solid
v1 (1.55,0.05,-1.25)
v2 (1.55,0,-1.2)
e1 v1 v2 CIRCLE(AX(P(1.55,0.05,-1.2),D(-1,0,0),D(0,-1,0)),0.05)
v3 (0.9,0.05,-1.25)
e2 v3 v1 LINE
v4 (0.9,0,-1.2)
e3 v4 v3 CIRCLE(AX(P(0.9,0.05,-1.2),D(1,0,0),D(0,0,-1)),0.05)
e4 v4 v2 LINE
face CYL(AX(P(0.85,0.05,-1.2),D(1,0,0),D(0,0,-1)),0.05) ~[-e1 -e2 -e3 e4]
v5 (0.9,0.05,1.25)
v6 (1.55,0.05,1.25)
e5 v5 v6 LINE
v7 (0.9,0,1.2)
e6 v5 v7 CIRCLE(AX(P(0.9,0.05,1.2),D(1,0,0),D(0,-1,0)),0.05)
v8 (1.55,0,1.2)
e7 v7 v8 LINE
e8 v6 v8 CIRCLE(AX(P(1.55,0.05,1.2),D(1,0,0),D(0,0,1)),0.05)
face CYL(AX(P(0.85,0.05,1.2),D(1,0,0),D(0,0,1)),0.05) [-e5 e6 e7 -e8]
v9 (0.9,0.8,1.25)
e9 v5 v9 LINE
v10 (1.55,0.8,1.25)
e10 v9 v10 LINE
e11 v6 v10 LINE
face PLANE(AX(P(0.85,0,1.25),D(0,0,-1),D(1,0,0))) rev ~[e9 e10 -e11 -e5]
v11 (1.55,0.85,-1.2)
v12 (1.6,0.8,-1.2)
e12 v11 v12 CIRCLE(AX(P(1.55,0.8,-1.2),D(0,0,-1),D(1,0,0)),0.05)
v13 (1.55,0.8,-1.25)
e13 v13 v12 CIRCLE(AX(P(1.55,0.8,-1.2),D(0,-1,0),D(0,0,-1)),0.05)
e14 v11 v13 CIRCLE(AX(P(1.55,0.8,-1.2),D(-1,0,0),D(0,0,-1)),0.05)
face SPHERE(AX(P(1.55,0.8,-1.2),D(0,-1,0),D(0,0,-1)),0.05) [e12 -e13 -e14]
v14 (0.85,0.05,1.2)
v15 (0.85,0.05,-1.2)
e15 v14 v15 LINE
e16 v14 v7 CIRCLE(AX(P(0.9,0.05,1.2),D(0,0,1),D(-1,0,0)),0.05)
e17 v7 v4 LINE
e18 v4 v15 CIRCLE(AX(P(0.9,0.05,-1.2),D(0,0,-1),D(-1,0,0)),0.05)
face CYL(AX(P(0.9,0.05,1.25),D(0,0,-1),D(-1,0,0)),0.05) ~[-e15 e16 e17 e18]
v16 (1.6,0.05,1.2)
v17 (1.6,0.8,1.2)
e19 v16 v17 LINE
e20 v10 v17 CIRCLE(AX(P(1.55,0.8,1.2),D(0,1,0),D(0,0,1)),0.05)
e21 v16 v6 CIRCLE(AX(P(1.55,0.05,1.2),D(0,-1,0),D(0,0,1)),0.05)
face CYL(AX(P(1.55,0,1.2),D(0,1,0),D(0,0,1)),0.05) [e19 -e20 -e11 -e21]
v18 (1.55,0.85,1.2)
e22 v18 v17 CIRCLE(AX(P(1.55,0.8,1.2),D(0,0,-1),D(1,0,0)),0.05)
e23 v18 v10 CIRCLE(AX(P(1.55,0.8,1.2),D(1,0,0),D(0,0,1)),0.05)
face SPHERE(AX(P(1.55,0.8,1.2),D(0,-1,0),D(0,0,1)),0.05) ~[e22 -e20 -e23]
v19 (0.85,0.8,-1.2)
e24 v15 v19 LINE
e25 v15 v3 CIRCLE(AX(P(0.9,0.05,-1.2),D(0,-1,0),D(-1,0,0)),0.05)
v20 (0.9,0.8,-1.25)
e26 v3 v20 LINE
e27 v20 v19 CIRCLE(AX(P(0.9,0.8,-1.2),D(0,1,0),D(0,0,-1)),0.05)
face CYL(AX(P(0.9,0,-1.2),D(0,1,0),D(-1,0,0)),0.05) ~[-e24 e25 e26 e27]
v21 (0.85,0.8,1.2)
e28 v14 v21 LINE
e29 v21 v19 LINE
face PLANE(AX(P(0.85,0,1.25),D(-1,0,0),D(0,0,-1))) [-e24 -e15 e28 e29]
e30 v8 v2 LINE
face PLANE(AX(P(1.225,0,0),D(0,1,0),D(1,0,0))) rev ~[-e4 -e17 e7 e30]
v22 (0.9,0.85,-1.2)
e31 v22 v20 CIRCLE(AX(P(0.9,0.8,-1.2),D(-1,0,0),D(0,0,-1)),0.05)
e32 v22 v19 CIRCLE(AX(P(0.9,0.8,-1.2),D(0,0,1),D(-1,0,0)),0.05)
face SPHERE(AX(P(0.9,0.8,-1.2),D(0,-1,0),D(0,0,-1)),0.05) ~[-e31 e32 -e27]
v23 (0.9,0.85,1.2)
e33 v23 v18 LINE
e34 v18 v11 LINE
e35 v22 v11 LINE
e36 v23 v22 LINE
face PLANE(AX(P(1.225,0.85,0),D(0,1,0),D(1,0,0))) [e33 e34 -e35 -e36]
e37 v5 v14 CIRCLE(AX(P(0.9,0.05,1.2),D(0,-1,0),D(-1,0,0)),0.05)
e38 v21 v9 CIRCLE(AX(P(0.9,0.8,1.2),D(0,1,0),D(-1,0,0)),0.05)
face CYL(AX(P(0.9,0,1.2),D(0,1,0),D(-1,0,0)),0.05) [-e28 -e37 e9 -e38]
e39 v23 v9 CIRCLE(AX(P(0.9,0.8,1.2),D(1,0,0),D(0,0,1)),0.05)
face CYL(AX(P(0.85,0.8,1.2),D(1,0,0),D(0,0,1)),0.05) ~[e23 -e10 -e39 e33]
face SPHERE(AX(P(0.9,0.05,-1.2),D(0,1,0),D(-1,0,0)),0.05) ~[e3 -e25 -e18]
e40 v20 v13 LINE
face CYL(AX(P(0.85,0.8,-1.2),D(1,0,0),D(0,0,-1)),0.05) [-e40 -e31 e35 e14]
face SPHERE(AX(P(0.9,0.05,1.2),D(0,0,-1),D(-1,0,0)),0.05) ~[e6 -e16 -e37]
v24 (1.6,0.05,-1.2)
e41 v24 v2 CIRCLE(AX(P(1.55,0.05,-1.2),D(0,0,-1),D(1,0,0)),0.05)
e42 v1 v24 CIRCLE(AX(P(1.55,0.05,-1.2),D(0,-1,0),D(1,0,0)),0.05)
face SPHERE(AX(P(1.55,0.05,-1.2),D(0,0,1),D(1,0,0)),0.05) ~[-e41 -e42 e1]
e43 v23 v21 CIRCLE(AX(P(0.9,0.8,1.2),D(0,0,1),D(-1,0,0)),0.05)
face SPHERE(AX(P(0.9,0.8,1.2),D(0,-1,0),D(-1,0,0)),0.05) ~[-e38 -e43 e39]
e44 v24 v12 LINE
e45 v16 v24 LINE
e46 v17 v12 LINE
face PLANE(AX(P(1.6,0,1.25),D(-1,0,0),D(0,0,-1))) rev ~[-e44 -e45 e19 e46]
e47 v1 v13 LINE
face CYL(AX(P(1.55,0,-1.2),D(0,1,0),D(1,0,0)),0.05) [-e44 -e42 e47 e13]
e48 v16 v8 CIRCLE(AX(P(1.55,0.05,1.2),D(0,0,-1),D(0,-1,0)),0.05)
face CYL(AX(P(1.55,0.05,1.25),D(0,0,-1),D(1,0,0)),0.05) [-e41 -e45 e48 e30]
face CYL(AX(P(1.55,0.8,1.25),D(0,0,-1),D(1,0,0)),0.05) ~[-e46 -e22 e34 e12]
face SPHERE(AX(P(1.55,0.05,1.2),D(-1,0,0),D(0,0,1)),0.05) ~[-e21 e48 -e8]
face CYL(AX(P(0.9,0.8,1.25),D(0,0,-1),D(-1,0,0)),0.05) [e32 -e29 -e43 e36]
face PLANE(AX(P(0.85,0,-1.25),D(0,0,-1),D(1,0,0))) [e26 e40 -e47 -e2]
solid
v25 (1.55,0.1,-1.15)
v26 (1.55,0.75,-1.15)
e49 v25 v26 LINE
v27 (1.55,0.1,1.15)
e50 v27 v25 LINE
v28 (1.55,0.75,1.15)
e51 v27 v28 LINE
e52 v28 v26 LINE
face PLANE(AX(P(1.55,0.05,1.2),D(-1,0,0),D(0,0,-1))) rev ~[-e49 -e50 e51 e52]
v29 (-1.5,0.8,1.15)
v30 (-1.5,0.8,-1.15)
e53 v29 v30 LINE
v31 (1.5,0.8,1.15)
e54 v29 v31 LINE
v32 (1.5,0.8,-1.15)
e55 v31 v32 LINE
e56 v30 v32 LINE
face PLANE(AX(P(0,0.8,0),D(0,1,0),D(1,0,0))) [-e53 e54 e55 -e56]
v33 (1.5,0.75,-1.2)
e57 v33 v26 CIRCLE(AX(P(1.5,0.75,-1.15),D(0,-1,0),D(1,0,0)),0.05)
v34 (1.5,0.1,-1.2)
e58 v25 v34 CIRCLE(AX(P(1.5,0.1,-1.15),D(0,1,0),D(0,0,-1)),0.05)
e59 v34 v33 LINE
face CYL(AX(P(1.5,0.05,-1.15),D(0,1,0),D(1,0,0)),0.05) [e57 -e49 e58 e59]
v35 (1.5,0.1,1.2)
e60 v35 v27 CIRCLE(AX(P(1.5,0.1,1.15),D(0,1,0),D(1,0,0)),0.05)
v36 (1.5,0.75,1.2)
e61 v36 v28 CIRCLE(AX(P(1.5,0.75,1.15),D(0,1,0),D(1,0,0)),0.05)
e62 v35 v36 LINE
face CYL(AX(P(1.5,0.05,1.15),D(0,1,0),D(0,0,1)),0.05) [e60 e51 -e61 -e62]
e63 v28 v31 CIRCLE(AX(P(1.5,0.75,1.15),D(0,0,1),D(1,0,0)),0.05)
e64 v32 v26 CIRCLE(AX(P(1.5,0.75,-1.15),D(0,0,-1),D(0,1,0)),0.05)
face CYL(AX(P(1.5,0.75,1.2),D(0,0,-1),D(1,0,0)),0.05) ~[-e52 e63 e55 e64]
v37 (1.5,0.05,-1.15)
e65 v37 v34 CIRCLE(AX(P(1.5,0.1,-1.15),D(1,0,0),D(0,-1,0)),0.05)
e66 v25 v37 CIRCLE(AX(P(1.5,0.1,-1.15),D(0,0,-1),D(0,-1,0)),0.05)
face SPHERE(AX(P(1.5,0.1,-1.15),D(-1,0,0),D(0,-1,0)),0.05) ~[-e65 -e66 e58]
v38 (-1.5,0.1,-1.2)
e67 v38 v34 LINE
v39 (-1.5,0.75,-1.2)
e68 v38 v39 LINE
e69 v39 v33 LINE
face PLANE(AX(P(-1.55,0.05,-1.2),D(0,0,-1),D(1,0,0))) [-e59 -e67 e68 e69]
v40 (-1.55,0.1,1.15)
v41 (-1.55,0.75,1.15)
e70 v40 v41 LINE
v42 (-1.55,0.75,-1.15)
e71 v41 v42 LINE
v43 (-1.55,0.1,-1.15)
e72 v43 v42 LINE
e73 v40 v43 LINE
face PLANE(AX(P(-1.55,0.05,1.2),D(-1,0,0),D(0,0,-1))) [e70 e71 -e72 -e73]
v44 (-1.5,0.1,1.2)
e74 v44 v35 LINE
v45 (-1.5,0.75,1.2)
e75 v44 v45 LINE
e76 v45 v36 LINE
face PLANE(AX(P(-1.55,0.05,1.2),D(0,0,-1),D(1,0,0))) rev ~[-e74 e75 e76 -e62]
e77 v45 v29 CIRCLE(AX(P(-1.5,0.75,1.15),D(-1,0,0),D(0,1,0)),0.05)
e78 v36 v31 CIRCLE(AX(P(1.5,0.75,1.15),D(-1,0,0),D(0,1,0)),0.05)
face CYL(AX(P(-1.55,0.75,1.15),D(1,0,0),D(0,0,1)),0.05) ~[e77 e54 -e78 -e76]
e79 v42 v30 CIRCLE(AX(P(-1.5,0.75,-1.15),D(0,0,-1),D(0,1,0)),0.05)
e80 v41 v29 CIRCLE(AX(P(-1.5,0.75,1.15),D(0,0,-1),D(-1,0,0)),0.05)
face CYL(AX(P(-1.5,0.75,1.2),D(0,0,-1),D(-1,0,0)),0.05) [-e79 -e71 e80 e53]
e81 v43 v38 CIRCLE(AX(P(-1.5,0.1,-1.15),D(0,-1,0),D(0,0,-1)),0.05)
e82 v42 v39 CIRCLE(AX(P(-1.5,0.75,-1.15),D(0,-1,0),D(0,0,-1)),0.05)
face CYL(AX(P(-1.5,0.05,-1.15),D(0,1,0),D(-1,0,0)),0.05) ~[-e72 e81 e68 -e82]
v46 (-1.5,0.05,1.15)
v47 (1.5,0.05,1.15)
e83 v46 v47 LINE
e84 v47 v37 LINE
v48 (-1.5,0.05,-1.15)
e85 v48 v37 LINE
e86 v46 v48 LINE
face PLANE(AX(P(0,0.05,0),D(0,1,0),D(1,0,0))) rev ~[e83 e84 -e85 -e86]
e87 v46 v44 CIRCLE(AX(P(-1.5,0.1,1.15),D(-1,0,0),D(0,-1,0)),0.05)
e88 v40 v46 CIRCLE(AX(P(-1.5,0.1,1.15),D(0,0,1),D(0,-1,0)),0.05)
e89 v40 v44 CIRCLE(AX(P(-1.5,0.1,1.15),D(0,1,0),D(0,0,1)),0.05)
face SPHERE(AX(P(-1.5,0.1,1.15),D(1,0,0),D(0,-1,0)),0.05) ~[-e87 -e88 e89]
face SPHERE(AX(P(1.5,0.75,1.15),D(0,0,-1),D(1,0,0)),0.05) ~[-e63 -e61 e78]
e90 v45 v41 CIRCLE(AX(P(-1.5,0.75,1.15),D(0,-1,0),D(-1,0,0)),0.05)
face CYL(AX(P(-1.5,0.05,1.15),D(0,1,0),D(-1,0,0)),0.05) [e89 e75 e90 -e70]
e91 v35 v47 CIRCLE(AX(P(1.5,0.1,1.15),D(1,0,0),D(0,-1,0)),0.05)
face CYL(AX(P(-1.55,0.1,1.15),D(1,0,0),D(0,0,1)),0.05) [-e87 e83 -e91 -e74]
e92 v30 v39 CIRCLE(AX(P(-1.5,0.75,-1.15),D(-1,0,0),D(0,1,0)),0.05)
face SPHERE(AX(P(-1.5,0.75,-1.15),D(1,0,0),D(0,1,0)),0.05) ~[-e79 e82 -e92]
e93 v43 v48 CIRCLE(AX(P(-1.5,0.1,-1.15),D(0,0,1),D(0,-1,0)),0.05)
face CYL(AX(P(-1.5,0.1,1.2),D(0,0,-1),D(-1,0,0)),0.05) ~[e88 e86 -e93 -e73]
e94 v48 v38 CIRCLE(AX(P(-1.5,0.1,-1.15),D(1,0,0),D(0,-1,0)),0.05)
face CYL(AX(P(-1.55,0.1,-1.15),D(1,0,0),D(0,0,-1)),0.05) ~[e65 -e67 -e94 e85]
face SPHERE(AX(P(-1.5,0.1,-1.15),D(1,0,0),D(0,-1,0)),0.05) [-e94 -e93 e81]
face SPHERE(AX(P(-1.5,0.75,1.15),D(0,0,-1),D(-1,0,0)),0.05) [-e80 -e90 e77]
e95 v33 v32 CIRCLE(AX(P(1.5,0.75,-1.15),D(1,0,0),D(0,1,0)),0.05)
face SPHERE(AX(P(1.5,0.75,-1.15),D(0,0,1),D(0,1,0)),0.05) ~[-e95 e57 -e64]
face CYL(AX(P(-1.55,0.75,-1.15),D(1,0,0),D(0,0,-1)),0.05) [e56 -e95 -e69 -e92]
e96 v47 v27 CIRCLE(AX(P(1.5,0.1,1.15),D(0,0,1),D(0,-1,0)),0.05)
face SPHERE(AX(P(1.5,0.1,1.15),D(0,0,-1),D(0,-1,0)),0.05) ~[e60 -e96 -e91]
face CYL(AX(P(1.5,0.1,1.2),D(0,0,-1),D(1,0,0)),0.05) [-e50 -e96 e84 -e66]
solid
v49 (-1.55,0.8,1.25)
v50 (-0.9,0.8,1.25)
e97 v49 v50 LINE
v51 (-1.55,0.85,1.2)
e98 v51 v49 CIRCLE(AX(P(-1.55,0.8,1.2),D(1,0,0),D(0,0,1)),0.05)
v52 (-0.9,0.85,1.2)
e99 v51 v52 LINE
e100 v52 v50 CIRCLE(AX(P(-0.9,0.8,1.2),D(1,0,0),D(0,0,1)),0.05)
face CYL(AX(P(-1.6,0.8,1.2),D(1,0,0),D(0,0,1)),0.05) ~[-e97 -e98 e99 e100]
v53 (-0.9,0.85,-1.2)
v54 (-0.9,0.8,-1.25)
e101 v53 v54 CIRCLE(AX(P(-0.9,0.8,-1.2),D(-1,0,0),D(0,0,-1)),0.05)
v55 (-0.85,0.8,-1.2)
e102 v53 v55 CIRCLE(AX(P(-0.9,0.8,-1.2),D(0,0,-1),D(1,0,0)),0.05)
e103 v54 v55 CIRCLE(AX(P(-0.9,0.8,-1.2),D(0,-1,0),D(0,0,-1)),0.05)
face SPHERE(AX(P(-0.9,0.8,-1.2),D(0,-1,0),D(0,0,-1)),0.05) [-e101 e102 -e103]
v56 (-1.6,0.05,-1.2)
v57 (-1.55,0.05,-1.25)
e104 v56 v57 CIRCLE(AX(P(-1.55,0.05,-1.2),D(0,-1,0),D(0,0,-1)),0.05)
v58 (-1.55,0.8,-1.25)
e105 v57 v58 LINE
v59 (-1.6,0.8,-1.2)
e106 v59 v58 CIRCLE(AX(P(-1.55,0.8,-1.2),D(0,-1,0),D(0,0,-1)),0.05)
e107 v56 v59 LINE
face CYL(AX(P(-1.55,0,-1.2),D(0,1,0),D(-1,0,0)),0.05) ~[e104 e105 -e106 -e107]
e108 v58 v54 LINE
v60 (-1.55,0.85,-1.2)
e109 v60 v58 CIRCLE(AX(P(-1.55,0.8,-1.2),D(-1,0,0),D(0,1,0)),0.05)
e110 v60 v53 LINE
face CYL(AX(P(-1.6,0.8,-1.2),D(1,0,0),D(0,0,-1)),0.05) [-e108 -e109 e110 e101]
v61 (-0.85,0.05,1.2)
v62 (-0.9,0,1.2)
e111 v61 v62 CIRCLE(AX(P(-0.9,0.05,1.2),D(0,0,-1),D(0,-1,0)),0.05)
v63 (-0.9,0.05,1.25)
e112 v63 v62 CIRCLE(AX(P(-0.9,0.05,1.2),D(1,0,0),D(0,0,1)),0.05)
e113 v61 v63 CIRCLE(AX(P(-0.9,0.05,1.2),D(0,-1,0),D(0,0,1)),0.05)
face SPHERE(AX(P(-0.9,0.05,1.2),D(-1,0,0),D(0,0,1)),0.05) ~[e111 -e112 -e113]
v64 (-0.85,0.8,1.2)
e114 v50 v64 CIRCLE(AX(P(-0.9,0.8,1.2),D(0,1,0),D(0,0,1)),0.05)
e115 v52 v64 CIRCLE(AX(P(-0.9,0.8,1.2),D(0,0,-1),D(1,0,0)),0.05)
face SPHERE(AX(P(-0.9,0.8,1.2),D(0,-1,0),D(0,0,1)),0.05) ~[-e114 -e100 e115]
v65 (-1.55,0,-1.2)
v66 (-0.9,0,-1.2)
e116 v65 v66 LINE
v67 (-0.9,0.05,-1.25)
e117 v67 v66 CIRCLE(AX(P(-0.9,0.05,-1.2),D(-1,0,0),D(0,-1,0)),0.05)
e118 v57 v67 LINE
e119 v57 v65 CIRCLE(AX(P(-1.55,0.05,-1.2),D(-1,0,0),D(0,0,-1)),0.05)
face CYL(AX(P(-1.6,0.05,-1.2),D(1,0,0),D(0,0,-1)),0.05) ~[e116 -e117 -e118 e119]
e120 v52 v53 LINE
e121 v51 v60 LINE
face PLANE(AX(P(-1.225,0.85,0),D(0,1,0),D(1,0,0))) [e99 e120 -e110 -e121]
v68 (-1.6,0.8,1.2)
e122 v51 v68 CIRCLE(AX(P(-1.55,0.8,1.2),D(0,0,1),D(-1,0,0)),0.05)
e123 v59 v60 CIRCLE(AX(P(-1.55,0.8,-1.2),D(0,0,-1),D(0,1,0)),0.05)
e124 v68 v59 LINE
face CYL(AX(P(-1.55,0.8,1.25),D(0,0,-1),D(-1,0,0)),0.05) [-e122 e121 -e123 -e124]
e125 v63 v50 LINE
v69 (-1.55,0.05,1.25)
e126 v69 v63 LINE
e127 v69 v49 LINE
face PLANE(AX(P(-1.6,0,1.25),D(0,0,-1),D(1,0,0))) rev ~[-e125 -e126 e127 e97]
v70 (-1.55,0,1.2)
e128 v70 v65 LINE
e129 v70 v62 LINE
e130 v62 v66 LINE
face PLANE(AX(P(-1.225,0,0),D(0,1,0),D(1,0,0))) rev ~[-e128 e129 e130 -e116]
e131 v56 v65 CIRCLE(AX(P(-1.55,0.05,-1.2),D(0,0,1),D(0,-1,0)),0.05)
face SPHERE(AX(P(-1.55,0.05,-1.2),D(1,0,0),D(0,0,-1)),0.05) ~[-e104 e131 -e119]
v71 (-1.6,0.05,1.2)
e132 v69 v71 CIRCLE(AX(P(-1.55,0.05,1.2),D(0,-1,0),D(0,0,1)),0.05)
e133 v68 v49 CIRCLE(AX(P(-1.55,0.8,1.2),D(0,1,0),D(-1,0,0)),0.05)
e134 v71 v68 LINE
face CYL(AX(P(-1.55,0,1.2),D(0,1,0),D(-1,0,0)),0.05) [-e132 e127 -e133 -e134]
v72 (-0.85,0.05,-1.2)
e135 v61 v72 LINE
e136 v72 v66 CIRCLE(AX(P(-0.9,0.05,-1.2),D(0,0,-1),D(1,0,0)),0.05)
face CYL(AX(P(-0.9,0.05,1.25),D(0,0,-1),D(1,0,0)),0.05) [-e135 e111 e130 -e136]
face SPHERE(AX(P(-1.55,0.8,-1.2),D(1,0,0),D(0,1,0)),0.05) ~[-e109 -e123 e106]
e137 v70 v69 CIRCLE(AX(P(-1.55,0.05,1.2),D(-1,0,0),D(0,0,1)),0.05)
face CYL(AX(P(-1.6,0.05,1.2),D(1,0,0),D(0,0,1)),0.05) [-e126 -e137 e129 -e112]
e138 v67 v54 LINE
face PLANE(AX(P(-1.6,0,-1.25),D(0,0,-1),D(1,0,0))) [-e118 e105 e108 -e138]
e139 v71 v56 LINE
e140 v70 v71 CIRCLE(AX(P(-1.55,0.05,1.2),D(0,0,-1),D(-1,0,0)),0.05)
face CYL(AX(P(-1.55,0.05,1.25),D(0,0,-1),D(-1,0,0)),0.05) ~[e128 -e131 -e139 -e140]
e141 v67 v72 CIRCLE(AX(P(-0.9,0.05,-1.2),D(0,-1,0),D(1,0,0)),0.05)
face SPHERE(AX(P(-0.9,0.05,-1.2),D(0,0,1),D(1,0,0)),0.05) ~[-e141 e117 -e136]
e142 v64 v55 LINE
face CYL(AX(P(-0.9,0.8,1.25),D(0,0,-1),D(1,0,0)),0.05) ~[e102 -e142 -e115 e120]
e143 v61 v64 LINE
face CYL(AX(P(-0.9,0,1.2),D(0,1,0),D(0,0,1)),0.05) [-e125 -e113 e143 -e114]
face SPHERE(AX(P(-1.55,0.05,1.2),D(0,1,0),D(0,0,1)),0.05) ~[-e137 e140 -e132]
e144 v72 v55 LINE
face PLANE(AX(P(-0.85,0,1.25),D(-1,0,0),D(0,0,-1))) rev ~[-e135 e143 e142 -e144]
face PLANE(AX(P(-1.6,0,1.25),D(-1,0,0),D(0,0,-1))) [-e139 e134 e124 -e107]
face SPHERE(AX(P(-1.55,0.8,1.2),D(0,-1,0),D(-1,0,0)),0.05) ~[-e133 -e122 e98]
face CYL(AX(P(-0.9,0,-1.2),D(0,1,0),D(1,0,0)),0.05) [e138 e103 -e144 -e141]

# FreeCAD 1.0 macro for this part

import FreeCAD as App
import Part
import Sketcher
from FreeCAD import Vector

doc = App.newDocument("Part")
body = doc.addObject("PartDesign::Body", "Body")

sketch1 = body.newObject("Sketcher::SketchObject", "Sketch")
sketch1.AttachmentSupport = (doc.getObject("XZ_Plane"), [""])
sketch1.MapMode = "FlatFace"
sketch1.AttachmentOffset = App.Placement(Vector(0, 0, -0.05), App.Rotation())
sketch1.addGeometry([
    Part.LineSegment(Vector(-1.6, -1.2, 0), Vector(-1.6, 1.2, 0)),
    Part.LineSegment(Vector(-1.6, 1.2, 0), Vector(1.6, 1.2, 0)),
    Part.LineSegment(Vector(1.6, 1.2, 0), Vector(1.6, -1.2, 0)),
    Part.LineSegment(Vector(1.6, -1.2, 0), Vector(-1.6, -1.2, 0)),
], False)
sketch1.addConstraint([
    Sketcher.Constraint("Coincident", 0, 2, 1, 1),
    Sketcher.Constraint("Coincident", 1, 2, 2, 1),
    Sketcher.Constraint("Coincident", 2, 2, 3, 1),
    Sketcher.Constraint("Coincident", 3, 2, 0, 1),
    Sketcher.Constraint("Vertical", 0),
    Sketcher.Constraint("Horizontal", 1),
    Sketcher.Constraint("Vertical", 2),
    Sketcher.Constraint("Horizontal", 3),
    Sketcher.Constraint("Symmetric", 0, 2, 2, 2, -1, 1),
    Sketcher.Constraint("DistanceX", 1, 1, 1, 2, 3.1),
    Sketcher.Constraint("DistanceY", 0, 1, 0, 2, 2.4),
])
pad1 = body.newObject("PartDesign::Pad", "Pad")
pad1.Profile = sketch1
pad1.Length = 0.75
pad1.Reversed = True
doc.recompute()

fillet = body.newObject("PartDesign::Fillet", "Fillet")
fillet.Base = (pad1, ["Edge1"])
fillet.UseAllEdges = True
fillet.Radius = 0.05
body2 = doc.addObject("PartDesign::Body", "Body001")

sketch2 = body2.newObject("Sketcher::SketchObject", "Sketch001")
sketch2.AttachmentSupport = (doc.getObject("XZ_Plane001"), [""])
sketch2.MapMode = "FlatFace"
sketch2.addGeometry([
    Part.LineSegment(Vector(-1.6, -1.2, 0), Vector(-1.6, 1.2, 0)),
    Part.LineSegment(Vector(-1.6, 1.2, 0), Vector(-0.8, 1.2, 0)),
    Part.LineSegment(Vector(-0.8, 1.2, 0), Vector(-0.8, -1.2, 0)),
    Part.LineSegment(Vector(-0.8, -1.2, 0), Vector(-1.6, -1.2, 0)),
], False)
sketch2.addConstraint([
    Sketcher.Constraint("Coincident", 0, 2, 1, 1),
    Sketcher.Constraint("Coincident", 1, 2, 2, 1),
    Sketcher.Constraint("Coincident", 2, 2, 3, 1),
    Sketcher.Constraint("Coincident", 3, 2, 0, 1),
    Sketcher.Constraint("Vertical", 0),
    Sketcher.Constraint("Horizontal", 1),
    Sketcher.Constraint("Vertical", 2),
    Sketcher.Constraint("Horizontal", 3),
    Sketcher.Constraint("DistanceY", 0, 1, 0, 2, 2.5),
    Sketcher.Constraint("DistanceX", 1, 1, 1, 2, 0.75),
    Sketcher.Constraint("DistanceX", 0, 2, -1, 1, 1.6),
    Sketcher.Constraint("DistanceY", -1, 1, 0, 2, 1.25),
])
pad2 = body2.newObject("PartDesign::Pad", "Pad001")
pad2.Profile = sketch2
pad2.Length = 0.85
pad2.Reversed = True
doc.recompute()

fillet2 = body2.newObject("PartDesign::Fillet", "Fillet001")
fillet2.Base = (pad2, ["Edge1"])
fillet2.UseAllEdges = True
fillet2.Radius = 0.05
body3 = doc.addObject("PartDesign::Body", "Body002")

sketch3 = body3.newObject("Sketcher::SketchObject", "Sketch002")
sketch3.AttachmentSupport = (doc.getObject("XZ_Plane002"), [""])
sketch3.MapMode = "FlatFace"
sketch3.addGeometry([
    Part.LineSegment(Vector(0.8, -1.2, 0), Vector(0.8, 1.2, 0)),
    Part.LineSegment(Vector(0.8, 1.2, 0), Vector(1.6, 1.2, 0)),
    Part.LineSegment(Vector(1.6, 1.2, 0), Vector(1.6, -1.2, 0)),
    Part.LineSegment(Vector(1.6, -1.2, 0), Vector(0.8, -1.2, 0)),
], False)
sketch3.addConstraint([
    Sketcher.Constraint("Coincident", 0, 2, 1, 1),
    Sketcher.Constraint("Coincident", 1, 2, 2, 1),
    Sketcher.Constraint("Coincident", 2, 2, 3, 1),
    Sketcher.Constraint("Coincident", 3, 2, 0, 1),
    Sketcher.Constraint("Vertical", 0),
    Sketcher.Constraint("Horizontal", 1),
    Sketcher.Constraint("Vertical", 2),
    Sketcher.Constraint("Horizontal", 3),
    Sketcher.Constraint("DistanceY", 0, 1, 0, 2, 2.5),
    Sketcher.Constraint("DistanceX", 1, 1, 1, 2, 0.75),
    Sketcher.Constraint("DistanceX", -1, 1, 1, 2, 1.6),
    Sketcher.Constraint("DistanceY", -1, 1, 0, 2, 1.25),
])
pad3 = body3.newObject("PartDesign::Pad", "Pad002")
pad3.Profile = sketch3
pad3.Length = 0.85
pad3.Reversed = True
doc.recompute()

fillet3 = body3.newObject("PartDesign::Fillet", "Fillet002")
fillet3.Base = (pad3, ["Edge1"])
fillet3.UseAllEdges = True
fillet3.Radius = 0.05

doc.recompute()
